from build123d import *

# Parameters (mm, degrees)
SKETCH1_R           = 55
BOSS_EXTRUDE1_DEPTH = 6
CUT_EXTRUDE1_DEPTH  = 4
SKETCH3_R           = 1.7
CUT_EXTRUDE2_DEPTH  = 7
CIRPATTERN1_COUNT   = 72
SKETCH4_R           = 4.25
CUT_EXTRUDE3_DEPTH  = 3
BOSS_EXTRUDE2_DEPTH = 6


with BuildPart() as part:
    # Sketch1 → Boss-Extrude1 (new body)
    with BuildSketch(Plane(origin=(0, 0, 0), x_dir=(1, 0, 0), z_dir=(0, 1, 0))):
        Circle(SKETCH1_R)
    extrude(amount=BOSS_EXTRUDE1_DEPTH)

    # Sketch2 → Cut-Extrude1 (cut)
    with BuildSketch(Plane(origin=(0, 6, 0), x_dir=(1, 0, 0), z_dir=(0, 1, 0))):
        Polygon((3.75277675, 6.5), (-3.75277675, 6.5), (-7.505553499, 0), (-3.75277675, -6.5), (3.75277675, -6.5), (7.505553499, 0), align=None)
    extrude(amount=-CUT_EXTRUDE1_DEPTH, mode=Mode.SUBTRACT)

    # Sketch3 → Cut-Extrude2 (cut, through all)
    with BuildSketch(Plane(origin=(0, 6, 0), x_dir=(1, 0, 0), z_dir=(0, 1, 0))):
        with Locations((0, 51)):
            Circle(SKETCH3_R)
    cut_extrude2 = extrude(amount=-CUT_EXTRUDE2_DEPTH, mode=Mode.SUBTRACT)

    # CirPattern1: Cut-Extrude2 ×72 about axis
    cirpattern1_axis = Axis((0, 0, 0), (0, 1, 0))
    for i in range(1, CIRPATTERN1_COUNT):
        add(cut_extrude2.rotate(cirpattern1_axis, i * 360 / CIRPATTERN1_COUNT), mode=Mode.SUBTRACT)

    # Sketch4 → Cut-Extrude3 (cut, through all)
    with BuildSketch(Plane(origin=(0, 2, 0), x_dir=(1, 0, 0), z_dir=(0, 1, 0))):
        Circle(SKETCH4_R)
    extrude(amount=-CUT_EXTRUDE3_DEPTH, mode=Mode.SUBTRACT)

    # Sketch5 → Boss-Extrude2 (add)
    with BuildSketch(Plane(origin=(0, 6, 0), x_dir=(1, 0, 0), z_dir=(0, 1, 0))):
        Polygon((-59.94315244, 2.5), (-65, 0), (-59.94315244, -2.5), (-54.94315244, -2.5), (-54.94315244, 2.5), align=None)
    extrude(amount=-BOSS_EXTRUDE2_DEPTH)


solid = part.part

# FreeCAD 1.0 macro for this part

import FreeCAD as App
import Part
import Sketcher
from FreeCAD import Vector
Q = App.Units.Quantity


def add_polygon(sketch, points):
    """Adds a closed chain of lines whose ends are joined by coincident constraints."""
    first, n = sketch.GeometryCount, len(points)
    for a, b in zip(points, points[1:] + points[:1]):
        sketch.addGeometry(Part.LineSegment(App.Vector(*a, 0), App.Vector(*b, 0)), False)
    for i in range(n):
        sketch.addConstraint(Sketcher.Constraint("Coincident", first + i, 2, first + (i + 1) % n, 1))

doc = App.newDocument("Part")
body = doc.addObject("PartDesign::Body", "Body")

sketch1 = doc.addObject("Sketcher::SketchObject", "Sketch")
body.addObject(sketch1)
sketch1.AttachmentSupport = (doc.XZ_Plane, [""])
sketch1.MapMode = "FlatFace"
sketch1.addGeometry(Part.Circle(Vector(0, 0, 0), Vector(0, 0, 1), 55), False)
sketch1.addConstraint([
    Sketcher.Constraint("Coincident", 0, 3, -1, 1),
    Sketcher.Constraint("Diameter", 0, 110.0),
])
pad1 = doc.addObject("PartDesign::Pad", "Pad")
body.addObject(pad1)
pad1.Profile = sketch1
pad1.Length = 6
pad1.Reversed = True

sketch2 = doc.addObject("Sketcher::SketchObject", "Sketch001")
body.addObject(sketch2)
sketch2.AttachmentSupport = (doc.XZ_Plane, [""])
sketch2.MapMode = "FlatFace"
sketch2.AttachmentOffset = App.Placement(Vector(0, 0, -6), App.Rotation())
add_polygon(sketch2, [(3.752777, -6.5), (-3.752777, -6.5), (-7.505553, 0), (-3.752777, 6.5), (3.752777, 6.5), (7.505553, 0)])
sketch2.addConstraint([
    Sketcher.Constraint("Horizontal", 0),
    Sketcher.Constraint("Horizontal", 3),
    Sketcher.Constraint("Symmetric", 0, 2, 3, 2, -1, 1),
    Sketcher.Constraint("Symmetric", 1, 2, 4, 2, -1, 1),
    Sketcher.Constraint("PointOnObject", 1, 2, -1),
    Sketcher.Constraint("Parallel", 2, 5),
    Sketcher.Constraint("Vertical", 0, 2, 2, 2),
    Sketcher.Constraint("Angle", 1, Q("120 deg")),
    Sketcher.Constraint("DistanceY", 0, 2, 2, 2, 13.0),
    Sketcher.Constraint("DistanceX", 0, 2, 0, 1, 7.505554),
])
pocket1 = doc.addObject("PartDesign::Pocket", "Pocket")
body.addObject(pocket1)
pocket1.Profile = sketch2
pocket1.Length = 4
pocket1.Reversed = True

sketch3 = doc.addObject("Sketcher::SketchObject", "Sketch002")
body.addObject(sketch3)
sketch3.AttachmentSupport = (doc.XZ_Plane, [""])
sketch3.MapMode = "FlatFace"
sketch3.AttachmentOffset = App.Placement(Vector(0, 0, -6), App.Rotation())
sketch3.addGeometry(Part.Circle(Vector(0, -51, 0), Vector(0, 0, 1), 1.7), False)
sketch3.addConstraint([
    Sketcher.Constraint("PointOnObject", 0, 3, -2),
    Sketcher.Constraint("Diameter", 0, 3.4),
    Sketcher.Constraint("DistanceY", 0, 3, -1, 1, 51.0),
])
pocket2 = doc.addObject("PartDesign::Pocket", "Pocket001")
body.addObject(pocket2)
pocket2.Profile = sketch3
pocket2.Type = "ThroughAll"
pocket2.Reversed = True
doc.recompute()

polarpattern = doc.addObject("PartDesign::PolarPattern", "PolarPattern")
body.addObject(polarpattern)
polarpattern.Originals = [pocket2]
polarpattern.Axis = (doc.Y_Axis, [""])
polarpattern.Angle = 360
polarpattern.Occurrences = 72
body.Tip = polarpattern

sketch4 = doc.addObject("Sketcher::SketchObject", "Sketch003")
body.addObject(sketch4)
sketch4.AttachmentSupport = (doc.XZ_Plane, [""])
sketch4.MapMode = "FlatFace"
sketch4.AttachmentOffset = App.Placement(Vector(0, 0, -2), App.Rotation())
sketch4.addGeometry(Part.Circle(Vector(0, 0, 0), Vector(0, 0, 1), 4.25), False)
sketch4.addConstraint([
    Sketcher.Constraint("Coincident", 0, 3, -1, 1),
    Sketcher.Constraint("Diameter", 0, 8.5),
])
pocket3 = doc.addObject("PartDesign::Pocket", "Pocket002")
body.addObject(pocket3)
pocket3.Profile = sketch4
pocket3.Type = "ThroughAll"
pocket3.Reversed = True

sketch5 = doc.addObject("Sketcher::SketchObject", "Sketch004")
body.addObject(sketch5)
sketch5.AttachmentSupport = (doc.XZ_Plane, [""])
sketch5.MapMode = "FlatFace"
sketch5.AttachmentOffset = App.Placement(Vector(0, 0, -6), App.Rotation())
add_polygon(sketch5, [(-59.943152, -2.5), (-65, 0), (-59.943152, 2.5), (-54.943152, 2.5), (-54.943152, -2.5)])
sketch5.addConstraint([
    Sketcher.Constraint("Horizontal", 2),
    Sketcher.Constraint("Vertical", 3),
    Sketcher.Constraint("Horizontal", 4),
    Sketcher.Constraint("Symmetric", 1, 2, 4, 2, -1),
    Sketcher.Constraint("PointOnObject", 0, 2, -1),
    Sketcher.Constraint("Equal", 4, 3),
    Sketcher.Constraint("DistanceX", 2, 1, 2, 2, 5.0),
    Sketcher.Constraint("DistanceX", 0, 2, -1, 1, 65.0),
    Sketcher.Constraint("Distance", 0, 5.641073),
])
pad2 = doc.addObject("PartDesign::Pad", "Pad001")
body.addObject(pad2)
pad2.Profile = sketch5
pad2.Length = 6

doc.recompute()
